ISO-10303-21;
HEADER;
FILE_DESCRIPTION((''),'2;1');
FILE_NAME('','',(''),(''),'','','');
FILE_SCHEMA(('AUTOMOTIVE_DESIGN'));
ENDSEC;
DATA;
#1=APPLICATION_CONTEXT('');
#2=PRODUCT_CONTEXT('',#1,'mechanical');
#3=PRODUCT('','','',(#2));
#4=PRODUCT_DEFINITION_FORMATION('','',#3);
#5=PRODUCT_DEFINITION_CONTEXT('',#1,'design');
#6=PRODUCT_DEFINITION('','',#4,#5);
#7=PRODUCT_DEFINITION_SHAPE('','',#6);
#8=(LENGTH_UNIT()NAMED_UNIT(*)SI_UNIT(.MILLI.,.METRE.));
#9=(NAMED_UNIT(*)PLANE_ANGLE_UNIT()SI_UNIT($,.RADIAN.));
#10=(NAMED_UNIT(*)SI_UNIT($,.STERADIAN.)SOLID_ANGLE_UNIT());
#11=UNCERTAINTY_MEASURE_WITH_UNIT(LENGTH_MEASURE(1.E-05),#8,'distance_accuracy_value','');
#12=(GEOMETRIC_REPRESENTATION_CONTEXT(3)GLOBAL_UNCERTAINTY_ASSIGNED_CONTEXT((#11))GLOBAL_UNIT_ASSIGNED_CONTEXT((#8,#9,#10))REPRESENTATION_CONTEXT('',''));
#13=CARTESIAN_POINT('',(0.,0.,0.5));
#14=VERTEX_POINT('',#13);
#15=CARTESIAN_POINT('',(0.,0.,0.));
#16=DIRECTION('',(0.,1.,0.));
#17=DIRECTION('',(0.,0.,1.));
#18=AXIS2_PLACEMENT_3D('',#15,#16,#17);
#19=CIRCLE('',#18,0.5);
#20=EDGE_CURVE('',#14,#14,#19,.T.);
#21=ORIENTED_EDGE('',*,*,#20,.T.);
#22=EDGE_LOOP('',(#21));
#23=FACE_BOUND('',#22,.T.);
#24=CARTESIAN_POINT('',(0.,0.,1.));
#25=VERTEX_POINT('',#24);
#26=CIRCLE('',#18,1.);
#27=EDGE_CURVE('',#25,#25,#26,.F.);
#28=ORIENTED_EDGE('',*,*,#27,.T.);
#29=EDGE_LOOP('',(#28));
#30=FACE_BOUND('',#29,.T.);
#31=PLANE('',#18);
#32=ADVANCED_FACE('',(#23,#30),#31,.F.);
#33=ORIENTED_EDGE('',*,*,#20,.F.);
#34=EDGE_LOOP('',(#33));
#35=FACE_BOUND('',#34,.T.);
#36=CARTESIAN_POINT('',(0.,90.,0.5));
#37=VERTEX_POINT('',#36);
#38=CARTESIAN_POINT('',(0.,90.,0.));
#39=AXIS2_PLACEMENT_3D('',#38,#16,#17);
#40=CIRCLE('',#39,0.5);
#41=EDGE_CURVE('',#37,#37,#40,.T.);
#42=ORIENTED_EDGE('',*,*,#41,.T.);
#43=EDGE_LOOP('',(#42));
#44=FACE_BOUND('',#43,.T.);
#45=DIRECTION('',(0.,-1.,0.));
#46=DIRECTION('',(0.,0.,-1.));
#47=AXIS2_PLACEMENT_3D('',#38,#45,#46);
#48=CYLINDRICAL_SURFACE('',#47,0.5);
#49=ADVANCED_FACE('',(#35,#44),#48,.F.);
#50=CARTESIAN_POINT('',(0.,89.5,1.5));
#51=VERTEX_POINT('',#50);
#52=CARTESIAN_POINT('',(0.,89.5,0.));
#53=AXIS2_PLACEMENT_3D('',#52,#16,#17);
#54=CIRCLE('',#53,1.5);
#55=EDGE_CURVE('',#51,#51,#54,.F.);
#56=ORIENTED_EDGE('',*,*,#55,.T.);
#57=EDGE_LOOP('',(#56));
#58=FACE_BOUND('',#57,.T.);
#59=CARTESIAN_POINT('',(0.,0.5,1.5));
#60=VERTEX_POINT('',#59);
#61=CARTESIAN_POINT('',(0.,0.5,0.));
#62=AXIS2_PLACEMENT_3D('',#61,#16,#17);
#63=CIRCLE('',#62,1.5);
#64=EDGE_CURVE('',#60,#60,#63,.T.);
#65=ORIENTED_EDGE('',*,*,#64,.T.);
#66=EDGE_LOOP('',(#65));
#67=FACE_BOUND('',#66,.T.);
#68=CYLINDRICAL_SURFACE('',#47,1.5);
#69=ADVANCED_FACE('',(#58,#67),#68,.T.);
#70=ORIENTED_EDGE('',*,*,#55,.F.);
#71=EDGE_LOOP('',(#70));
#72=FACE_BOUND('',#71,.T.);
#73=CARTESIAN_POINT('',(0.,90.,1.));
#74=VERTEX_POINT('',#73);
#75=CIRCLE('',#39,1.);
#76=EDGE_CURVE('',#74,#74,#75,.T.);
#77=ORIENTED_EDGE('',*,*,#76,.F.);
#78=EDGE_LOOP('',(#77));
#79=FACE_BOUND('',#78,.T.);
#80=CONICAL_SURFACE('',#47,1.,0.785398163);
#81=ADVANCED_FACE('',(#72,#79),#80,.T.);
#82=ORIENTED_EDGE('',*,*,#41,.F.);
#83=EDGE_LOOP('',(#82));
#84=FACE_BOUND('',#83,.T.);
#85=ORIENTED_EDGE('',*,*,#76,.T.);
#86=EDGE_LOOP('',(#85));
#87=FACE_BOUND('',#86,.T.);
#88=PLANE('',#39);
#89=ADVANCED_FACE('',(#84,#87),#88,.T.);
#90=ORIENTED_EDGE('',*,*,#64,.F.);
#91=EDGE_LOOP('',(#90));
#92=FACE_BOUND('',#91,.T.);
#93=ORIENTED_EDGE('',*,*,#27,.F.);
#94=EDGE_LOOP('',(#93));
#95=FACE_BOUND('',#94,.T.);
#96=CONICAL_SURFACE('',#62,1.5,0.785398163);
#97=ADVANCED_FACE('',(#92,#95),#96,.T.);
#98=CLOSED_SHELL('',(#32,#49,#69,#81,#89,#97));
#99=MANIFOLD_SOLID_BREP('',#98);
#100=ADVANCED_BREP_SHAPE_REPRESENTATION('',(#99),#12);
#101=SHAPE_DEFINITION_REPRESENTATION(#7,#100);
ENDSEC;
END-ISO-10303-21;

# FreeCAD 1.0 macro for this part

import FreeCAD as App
import Part
import Sketcher
from FreeCAD import Vector
Q = App.Units.Quantity


def edges_at(feature, points):
    """Names of the edges that pass closest to the given points."""
    edges = feature.Shape.Edges
    near = lambda p: min(range(len(edges)), key=lambda i: edges[i].distToShape(Part.Vertex(*p))[0])
    return sorted({f"Edge{near(p) + 1}" for p in points})

doc = App.newDocument("Part")
params = doc.addObject("Spreadsheet::Sheet", "Params")
for row, (alias, value) in enumerate([
    ("sketch1_diameter", "3 mm"),
    ("sketch1_diameter2", "1 mm"),
    ("pad1_length", "90 mm"),
    ("chamfer_size", "0.5 mm"),
], start=1):
    params.set(f"A{row}", alias)
    params.set(f"B{row}", "=" + value)
    params.setAlias(f"B{row}", alias)

body = doc.addObject("PartDesign::Body", "Body")

# Sketch on XZ plane
sketch1 = doc.addObject("Sketcher::SketchObject", "Sketch")
body.addObject(sketch1)
sketch1.AttachmentSupport = (doc.XZ_Plane, [""])
sketch1.MapMode = "FlatFace"
sketch1.addGeometry([
    Part.Circle(Vector(0, 0, 0), Vector(0, 0, 1), 1.5),
    Part.Circle(Vector(0, 0, 0), Vector(0, 0, 1), 0.5),
], False)
sketch1.addConstraint([
    Sketcher.Constraint("Coincident", 0, 3, -1, 1),
    Sketcher.Constraint("Coincident", 1, 3, -1, 1),
    Sketcher.Constraint("Diameter", 0, Q("3 mm")),
    Sketcher.Constraint("Diameter", 1, Q("1 mm")),
])
sketch1.setExpression("Constraints[2]", "Params.sketch1_diameter")
sketch1.setExpression("Constraints[3]", "Params.sketch1_diameter2")
pad1 = doc.addObject("PartDesign::Pad", "Pad")
body.addObject(pad1)
pad1.Profile = sketch1
pad1.setExpression("Length", "Params.pad1_length")
pad1.Reversed = True
doc.recompute()

chamfer = doc.addObject("PartDesign::Chamfer", "Chamfer")
body.addObject(chamfer)
chamfer.Base = (pad1, edges_at(pad1, [(-1.5, 0, 0), (-1.5, 90, 0)]))
chamfer.setExpression("Size", "Params.chamfer_size")

doc.recompute()
